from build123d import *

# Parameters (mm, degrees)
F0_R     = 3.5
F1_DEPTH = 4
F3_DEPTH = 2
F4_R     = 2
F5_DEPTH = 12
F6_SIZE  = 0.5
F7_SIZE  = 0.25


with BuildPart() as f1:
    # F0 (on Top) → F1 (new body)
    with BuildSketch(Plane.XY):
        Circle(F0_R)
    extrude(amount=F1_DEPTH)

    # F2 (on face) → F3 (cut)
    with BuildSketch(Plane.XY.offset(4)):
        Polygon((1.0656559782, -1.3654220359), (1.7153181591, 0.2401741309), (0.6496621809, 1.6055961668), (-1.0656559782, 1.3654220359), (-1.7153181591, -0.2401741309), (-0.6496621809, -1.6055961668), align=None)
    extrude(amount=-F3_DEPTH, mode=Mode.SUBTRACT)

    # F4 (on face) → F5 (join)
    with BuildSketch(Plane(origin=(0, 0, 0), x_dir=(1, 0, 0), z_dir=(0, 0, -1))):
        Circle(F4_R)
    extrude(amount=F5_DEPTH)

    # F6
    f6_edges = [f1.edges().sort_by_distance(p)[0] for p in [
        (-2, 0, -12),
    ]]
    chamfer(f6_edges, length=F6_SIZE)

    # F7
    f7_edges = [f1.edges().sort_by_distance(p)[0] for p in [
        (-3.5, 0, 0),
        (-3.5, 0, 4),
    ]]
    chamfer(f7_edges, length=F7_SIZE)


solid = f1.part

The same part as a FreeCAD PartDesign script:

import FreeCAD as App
import Part
import Sketcher

V = App.Vector
Q = App.Units.Quantity


def edges_at(feature, points):
    """Names of the edges that pass closest to the given points."""
    edges = feature.Shape.Edges
    near = lambda p: min(range(len(edges)), key=lambda i: edges[i].distToShape(Part.Vertex(*p))[0])
    return sorted({f"Edge{near(p) + 1}" for p in points})

doc = App.newDocument("Part")
body = doc.addObject("PartDesign::Body", "Body")

sketch1 = body.newObject("Sketcher::SketchObject", "Sketch")
sketch1.AttachmentSupport = (doc.getObject("XY_Plane"), [""])
sketch1.MapMode = "FlatFace"
sketch1.addGeometry(Part.Circle(V(0, 0, 0), V(0, 0, 1), 3.5), False)
sketch1.addConstraint(Sketcher.Constraint("Coincident", 0, 3, -1, 1))
sketch1.addConstraint(Sketcher.Constraint("Diameter", 0, Q("7 mm")))
pad1 = body.newObject("PartDesign::Pad", "Pad")
pad1.Profile = sketch1
pad1.Length = 4

sketch2 = body.newObject("Sketcher::SketchObject", "Sketch001")
sketch2.AttachmentSupport = (doc.getObject("XY_Plane"), [""])
sketch2.MapMode = "FlatFace"
sketch2.AttachmentOffset = App.Placement(V(0, 0, 4), App.Rotation())
sketch2.addGeometry(Part.LineSegment(V(1.1, -1.4, 0), V(1.7, 0.2, 0)), False)
sketch2.addGeometry(Part.LineSegment(V(1.7, 0.2, 0), V(0.6, 1.6, 0)), False)
sketch2.addGeometry(Part.LineSegment(V(0.6, 1.6, 0), V(-1.1, 1.4, 0)), False)
sketch2.addGeometry(Part.LineSegment(V(-1.1, 1.4, 0), V(-1.7, -0.2, 0)), False)
sketch2.addGeometry(Part.LineSegment(V(-1.7, -0.2, 0), V(-0.6, -1.6, 0)), False)
sketch2.addGeometry(Part.LineSegment(V(-0.6, -1.6, 0), V(1.1, -1.4, 0)), False)
sketch2.addConstraint(Sketcher.Constraint("Coincident", 0, 2, 1, 1))
sketch2.addConstraint(Sketcher.Constraint("Coincident", 1, 2, 2, 1))
sketch2.addConstraint(Sketcher.Constraint("Coincident", 2, 2, 3, 1))
sketch2.addConstraint(Sketcher.Constraint("Coincident", 3, 2, 4, 1))
sketch2.addConstraint(Sketcher.Constraint("Coincident", 4, 2, 5, 1))
sketch2.addConstraint(Sketcher.Constraint("Coincident", 5, 2, 0, 1))
sketch2.addConstraint(Sketcher.Constraint("Symmetric", 0, 2, 3, 2, -1, 1))
sketch2.addConstraint(Sketcher.Constraint("Symmetric", 1, 2, 4, 2, -1, 1))
sketch2.addConstraint(Sketcher.Constraint("Symmetric", 2, 2, 5, 2, -1, 1))
sketch2.addConstraint(Sketcher.Constraint("Equal", 0, 1))
sketch2.addConstraint(Sketcher.Constraint("Equal", 1, 2))
sketch2.addConstraint(Sketcher.Constraint("Distance", 0, Q("1.732051 mm")))
sketch2.addConstraint(Sketcher.Constraint("DistanceX", -1, 1, 0, 2, Q("1.715318 mm")))
sketch2.addConstraint(Sketcher.Constraint("DistanceX", 2, 2, 1, 2, Q("1.715318 mm")))
sketch2.addConstraint(Sketcher.Constraint("DistanceX", 3, 2, 1, 2, Q("2.36498 mm")))
pocket1 = body.newObject("PartDesign::Pocket", "Pocket")
pocket1.Profile = sketch2
pocket1.Length = 2

sketch3 = body.newObject("Sketcher::SketchObject", "Sketch002")
sketch3.AttachmentSupport = (doc.getObject("XY_Plane"), [""])
sketch3.MapMode = "FlatFace"
sketch3.addGeometry(Part.Circle(V(0, 0, 0), V(0, 0, 1), 2), False)
sketch3.addConstraint(Sketcher.Constraint("Coincident", 0, 3, -1, 1))
sketch3.addConstraint(Sketcher.Constraint("Diameter", 0, Q("4 mm")))
pad2 = body.newObject("PartDesign::Pad", "Pad001")
pad2.Profile = sketch3
pad2.Length = 12
pad2.Reversed = True
doc.recompute()

chamfer = body.newObject("PartDesign::Chamfer", "Chamfer")
chamfer.Base = (pad2, edges_at(pad2, [(-2, 0, -12)]))
chamfer.Size = 0.5
doc.recompute()

chamfer2 = body.newObject("PartDesign::Chamfer", "Chamfer001")
chamfer2.Base = (chamfer, edges_at(chamfer, [(-3.5, 0, 0), (-3.5, 0, 4)]))
chamfer2.Size = 0.25

doc.recompute()
